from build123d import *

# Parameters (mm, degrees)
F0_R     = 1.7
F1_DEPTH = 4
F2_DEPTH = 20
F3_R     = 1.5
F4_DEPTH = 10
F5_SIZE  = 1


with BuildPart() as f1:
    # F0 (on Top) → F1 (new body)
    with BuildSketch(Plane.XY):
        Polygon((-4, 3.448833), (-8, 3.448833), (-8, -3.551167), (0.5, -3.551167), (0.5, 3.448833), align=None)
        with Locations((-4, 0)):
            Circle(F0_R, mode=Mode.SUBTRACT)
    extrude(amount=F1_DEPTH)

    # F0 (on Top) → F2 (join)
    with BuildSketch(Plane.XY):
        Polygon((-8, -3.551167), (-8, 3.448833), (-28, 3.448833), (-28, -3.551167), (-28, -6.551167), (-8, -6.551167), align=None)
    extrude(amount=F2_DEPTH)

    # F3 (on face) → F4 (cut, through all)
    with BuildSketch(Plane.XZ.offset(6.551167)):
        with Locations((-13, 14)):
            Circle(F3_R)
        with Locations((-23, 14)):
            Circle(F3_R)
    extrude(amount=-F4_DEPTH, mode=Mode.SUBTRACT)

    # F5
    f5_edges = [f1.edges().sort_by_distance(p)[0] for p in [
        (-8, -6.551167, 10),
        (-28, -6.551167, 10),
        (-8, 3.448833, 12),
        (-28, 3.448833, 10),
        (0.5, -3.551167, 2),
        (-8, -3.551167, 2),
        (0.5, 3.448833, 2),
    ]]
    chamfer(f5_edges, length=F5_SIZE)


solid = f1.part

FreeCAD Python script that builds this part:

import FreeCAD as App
import Part
import Sketcher
from FreeCAD import Vector


def edges_at(feature, points):
    """Names of the edges that pass closest to the given points."""
    edges = feature.Shape.Edges
    near = lambda p: min(range(len(edges)), key=lambda i: edges[i].distToShape(Part.Vertex(*p))[0])
    return sorted({f"Edge{near(p) + 1}" for p in points})

doc = App.newDocument("Part")
body = doc.addObject("PartDesign::Body", "Body")

sketch1 = doc.addObject("Sketcher::SketchObject", "Sketch")
body.addObject(sketch1)
sketch1.AttachmentSupport = (doc.XY_Plane, [""])
sketch1.MapMode = "FlatFace"
sketch1.addGeometry([
    Part.LineSegment(Vector(-8, 3.4, 0), Vector(-8, -3.6, 0)),
    Part.LineSegment(Vector(-8, -3.6, 0), Vector(0.5, -3.6, 0)),
    Part.LineSegment(Vector(0.5, -3.6, 0), Vector(0.5, 3.4, 0)),
    Part.LineSegment(Vector(0.5, 3.4, 0), Vector(-8, 3.4, 0)),
    Part.Circle(Vector(-4, 0, 0), Vector(0, 0, 1), 1.7),
], False)
sketch1.addConstraint([
    Sketcher.Constraint("Coincident", 0, 2, 1, 1),
    Sketcher.Constraint("Coincident", 1, 2, 2, 1),
    Sketcher.Constraint("Coincident", 2, 2, 3, 1),
    Sketcher.Constraint("Coincident", 3, 2, 0, 1),
    Sketcher.Constraint("Vertical", 0),
    Sketcher.Constraint("Horizontal", 1),
    Sketcher.Constraint("Vertical", 2),
    Sketcher.Constraint("Horizontal", 3),
    Sketcher.Constraint("PointOnObject", 4, 3, -1),
    Sketcher.Constraint("Diameter", 4, 3.4),
    Sketcher.Constraint("DistanceY", 0, 2, 0, 1, 7.0),
    Sketcher.Constraint("DistanceX", 1, 1, 1, 2, 8.5),
    Sketcher.Constraint("DistanceX", 4, 3, -1, 1, 4.0),
    Sketcher.Constraint("DistanceX", 0, 2, -1, 1, 8.0),
    Sketcher.Constraint("DistanceY", 0, 2, -1, 1, 3.551167),
])
pad1 = doc.addObject("PartDesign::Pad", "Pad")
body.addObject(pad1)
pad1.Profile = sketch1
pad1.Length = 4

sketch2 = doc.addObject("Sketcher::SketchObject", "Sketch001")
body.addObject(sketch2)
sketch2.AttachmentSupport = (doc.XY_Plane, [""])
sketch2.MapMode = "FlatFace"
sketch2.addGeometry([
    Part.LineSegment(Vector(-8, 3, 0), Vector(-28, 3, 0)),
    Part.LineSegment(Vector(-28, 3, 0), Vector(-28, -7, 0)),
    Part.LineSegment(Vector(-28, -7, 0), Vector(-8, -7, 0)),
    Part.LineSegment(Vector(-8, -7, 0), Vector(-8, 3, 0)),
], False)
sketch2.addConstraint([
    Sketcher.Constraint("Coincident", 0, 2, 1, 1),
    Sketcher.Constraint("Coincident", 1, 2, 2, 1),
    Sketcher.Constraint("Coincident", 2, 2, 3, 1),
    Sketcher.Constraint("Coincident", 3, 2, 0, 1),
    Sketcher.Constraint("Horizontal", 0),
    Sketcher.Constraint("Vertical", 1),
    Sketcher.Constraint("Horizontal", 2),
    Sketcher.Constraint("Vertical", 3),
    Sketcher.Constraint("DistanceX", 0, 2, 0, 1, 20.0),
    Sketcher.Constraint("DistanceY", 1, 2, 1, 1, 10.0),
    Sketcher.Constraint("DistanceX", 0, 2, -1, 1, 28.0),
    Sketcher.Constraint("DistanceY", -1, 1, 0, 2, 3.448833),
])
pad2 = doc.addObject("PartDesign::Pad", "Pad001")
body.addObject(pad2)
pad2.Profile = sketch2
pad2.Length = 20

sketch3 = doc.addObject("Sketcher::SketchObject", "Sketch002")
body.addObject(sketch3)
sketch3.AttachmentSupport = (doc.XZ_Plane, [""])
sketch3.MapMode = "FlatFace"
sketch3.AttachmentOffset = App.Placement(Vector(0, 0, 6.551167), App.Rotation())
sketch3.addGeometry([
    Part.Circle(Vector(-13, 14, 0), Vector(0, 0, 1), 1.5),
    Part.Circle(Vector(-23, 14, 0), Vector(0, 0, 1), 1.5),
], False)
sketch3.addConstraint([
    Sketcher.Constraint("Equal", 0, 1),
    Sketcher.Constraint("Horizontal", 0, 3, 1, 3),
    Sketcher.Constraint("Diameter", 0, 3.0),
    Sketcher.Constraint("DistanceX", 0, 3, -1, 1, 13.0),
    Sketcher.Constraint("DistanceY", -1, 1, 0, 3, 14.0),
    Sketcher.Constraint("DistanceX", 1, 3, -1, 1, 23.0),
])
pocket1 = doc.addObject("PartDesign::Pocket", "Pocket")
body.addObject(pocket1)
pocket1.Profile = sketch3
pocket1.Type = "ThroughAll"
doc.recompute()

chamfer = doc.addObject("PartDesign::Chamfer", "Chamfer")
body.addObject(chamfer)
chamfer.Base = (pocket1, edges_at(pocket1, [
    (-8, -6.551, 10),
    (-28, -6.551, 10),
    (-8, 3.449, 12),
    (-28, 3.449, 10),
    (0.5, -3.551, 2),
    (-8, -3.551, 2),
    (0.5, 3.449, 2),
]))
chamfer.Size = 1

doc.recompute()
